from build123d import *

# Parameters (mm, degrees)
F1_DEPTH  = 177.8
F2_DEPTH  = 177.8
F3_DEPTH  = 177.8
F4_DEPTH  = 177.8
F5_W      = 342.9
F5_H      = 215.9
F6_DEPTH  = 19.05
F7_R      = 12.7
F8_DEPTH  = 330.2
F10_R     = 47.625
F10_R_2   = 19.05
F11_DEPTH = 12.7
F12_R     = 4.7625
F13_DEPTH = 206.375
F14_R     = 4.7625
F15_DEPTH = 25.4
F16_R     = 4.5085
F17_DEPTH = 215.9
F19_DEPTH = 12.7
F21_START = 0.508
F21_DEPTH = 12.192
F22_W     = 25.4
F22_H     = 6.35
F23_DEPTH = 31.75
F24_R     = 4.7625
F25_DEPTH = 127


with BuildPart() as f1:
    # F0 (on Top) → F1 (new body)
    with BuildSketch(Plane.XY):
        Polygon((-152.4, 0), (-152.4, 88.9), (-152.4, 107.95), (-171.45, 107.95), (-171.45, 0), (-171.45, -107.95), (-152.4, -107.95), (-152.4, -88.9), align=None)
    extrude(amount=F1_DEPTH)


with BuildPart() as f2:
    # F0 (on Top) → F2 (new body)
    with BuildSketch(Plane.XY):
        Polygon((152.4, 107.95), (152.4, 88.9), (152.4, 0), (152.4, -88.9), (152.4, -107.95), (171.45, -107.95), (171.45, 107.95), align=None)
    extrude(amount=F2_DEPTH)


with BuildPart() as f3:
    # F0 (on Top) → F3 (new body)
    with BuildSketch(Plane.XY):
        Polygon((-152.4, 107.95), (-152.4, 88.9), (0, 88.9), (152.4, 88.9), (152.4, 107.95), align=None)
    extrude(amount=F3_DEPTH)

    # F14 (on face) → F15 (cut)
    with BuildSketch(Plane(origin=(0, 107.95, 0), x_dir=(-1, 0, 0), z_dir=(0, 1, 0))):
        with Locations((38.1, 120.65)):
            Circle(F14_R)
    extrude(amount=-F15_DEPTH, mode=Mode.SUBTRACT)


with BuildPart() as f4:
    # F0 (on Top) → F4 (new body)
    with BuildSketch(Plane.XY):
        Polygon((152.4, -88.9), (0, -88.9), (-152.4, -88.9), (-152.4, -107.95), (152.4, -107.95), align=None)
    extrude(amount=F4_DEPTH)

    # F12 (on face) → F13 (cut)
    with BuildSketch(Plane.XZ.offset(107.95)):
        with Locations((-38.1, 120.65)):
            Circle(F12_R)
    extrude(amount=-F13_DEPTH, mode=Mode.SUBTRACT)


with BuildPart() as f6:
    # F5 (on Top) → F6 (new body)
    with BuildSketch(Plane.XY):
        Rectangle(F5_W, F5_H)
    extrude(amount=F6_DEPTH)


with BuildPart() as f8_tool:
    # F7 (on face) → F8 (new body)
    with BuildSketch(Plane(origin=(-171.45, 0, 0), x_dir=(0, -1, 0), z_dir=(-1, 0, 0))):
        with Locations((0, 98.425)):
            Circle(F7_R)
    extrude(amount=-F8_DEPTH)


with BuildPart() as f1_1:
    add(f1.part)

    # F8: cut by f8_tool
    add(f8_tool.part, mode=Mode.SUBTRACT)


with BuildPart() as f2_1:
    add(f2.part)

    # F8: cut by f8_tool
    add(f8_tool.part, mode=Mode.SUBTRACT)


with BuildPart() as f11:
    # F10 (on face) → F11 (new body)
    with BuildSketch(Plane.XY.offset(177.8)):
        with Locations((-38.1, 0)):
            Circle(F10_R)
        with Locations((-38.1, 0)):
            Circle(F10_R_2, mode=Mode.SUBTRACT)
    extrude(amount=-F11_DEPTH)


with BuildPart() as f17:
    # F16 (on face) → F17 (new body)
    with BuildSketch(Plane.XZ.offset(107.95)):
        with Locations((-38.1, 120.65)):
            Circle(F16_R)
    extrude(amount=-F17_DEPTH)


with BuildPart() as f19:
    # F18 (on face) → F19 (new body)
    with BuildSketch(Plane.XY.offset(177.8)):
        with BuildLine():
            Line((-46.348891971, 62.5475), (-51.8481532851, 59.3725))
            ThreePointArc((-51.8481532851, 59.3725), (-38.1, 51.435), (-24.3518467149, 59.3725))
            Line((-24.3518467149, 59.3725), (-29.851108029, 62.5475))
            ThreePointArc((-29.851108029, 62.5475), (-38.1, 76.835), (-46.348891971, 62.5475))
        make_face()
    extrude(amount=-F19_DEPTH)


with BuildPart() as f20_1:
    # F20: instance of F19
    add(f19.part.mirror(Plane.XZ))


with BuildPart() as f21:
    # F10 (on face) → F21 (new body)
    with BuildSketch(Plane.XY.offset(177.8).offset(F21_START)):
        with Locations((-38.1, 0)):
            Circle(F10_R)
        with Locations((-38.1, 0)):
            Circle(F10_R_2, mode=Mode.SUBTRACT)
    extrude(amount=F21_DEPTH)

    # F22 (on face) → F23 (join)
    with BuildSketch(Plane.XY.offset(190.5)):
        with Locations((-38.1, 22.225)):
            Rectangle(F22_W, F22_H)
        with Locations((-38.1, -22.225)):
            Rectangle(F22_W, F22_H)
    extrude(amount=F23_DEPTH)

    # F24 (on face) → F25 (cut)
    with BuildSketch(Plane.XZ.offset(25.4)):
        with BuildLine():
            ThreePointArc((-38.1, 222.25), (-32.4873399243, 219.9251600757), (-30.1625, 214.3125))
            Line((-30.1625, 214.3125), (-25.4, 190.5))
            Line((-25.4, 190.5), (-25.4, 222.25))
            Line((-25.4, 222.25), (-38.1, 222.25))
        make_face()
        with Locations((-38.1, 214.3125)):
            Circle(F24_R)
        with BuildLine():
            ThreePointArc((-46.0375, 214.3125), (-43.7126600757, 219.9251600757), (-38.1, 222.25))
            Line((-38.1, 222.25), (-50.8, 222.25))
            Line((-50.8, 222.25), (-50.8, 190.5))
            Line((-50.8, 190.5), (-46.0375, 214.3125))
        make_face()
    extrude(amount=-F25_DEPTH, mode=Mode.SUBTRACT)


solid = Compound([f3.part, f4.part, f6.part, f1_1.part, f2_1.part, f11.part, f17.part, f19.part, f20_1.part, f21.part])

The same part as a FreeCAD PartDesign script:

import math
import FreeCAD as App
import Part
import Sketcher
from FreeCAD import Vector
Q = App.Units.Quantity


def add_polygon(sketch, points):
    """Adds a closed chain of lines whose ends are joined by coincident constraints."""
    first, n = sketch.GeometryCount, len(points)
    for a, b in zip(points, points[1:] + points[:1]):
        sketch.addGeometry(Part.LineSegment(App.Vector(*a, 0), App.Vector(*b, 0)), False)
    for i in range(n):
        sketch.addConstraint(Sketcher.Constraint("Coincident", first + i, 2, first + (i + 1) % n, 1))

doc = App.newDocument("Part")
body = doc.addObject("PartDesign::Body", "Body")

# Sketch on XY plane
sketch1 = body.newObject("Sketcher::SketchObject", "Sketch")
sketch1.AttachmentSupport = (doc.getObject("XY_Plane"), [""])
sketch1.MapMode = "FlatFace"
add_polygon(sketch1, [(-152.4, 107.95), (-171.45, 107.95), (-171.45, -107.95), (-152.4, -107.95)])  # lines 0-3
sketch1.addConstraint([
    Sketcher.Constraint("Horizontal", 0),
    Sketcher.Constraint("Vertical", 1),
    Sketcher.Constraint("Horizontal", 2),
    Sketcher.Constraint("Vertical", 3),
    Sketcher.Constraint("DistanceY", 1, 2, 1, 1, Q("8.5 in")),
    Sketcher.Constraint("DistanceX", 2, 2, -1, 1, Q("6 in")),
    Sketcher.Constraint("DistanceX", 0, 2, 0, 1, Q("0.75 in")),
    Sketcher.Constraint("DistanceY", -1, 1, 0, 2, Q("4.25 in")),
])
pad1 = body.newObject("PartDesign::Pad", "Pad")
pad1.Profile = sketch1
pad1.Length = Q("7 in")
body2 = doc.addObject("PartDesign::Body", "Body001")

# Sketch on XY plane
sketch2 = body2.newObject("Sketcher::SketchObject", "Sketch001")
sketch2.AttachmentSupport = (doc.getObject("XY_Plane001"), [""])
sketch2.MapMode = "FlatFace"
add_polygon(sketch2, [(152.4, 107.95), (152.4, -107.95), (171.45, -107.95), (171.45, 107.95)])  # lines 0-3
sketch2.addConstraint([
    Sketcher.Constraint("Vertical", 0),
    Sketcher.Constraint("Horizontal", 1),
    Sketcher.Constraint("Vertical", 2),
    Sketcher.Constraint("Horizontal", 3),
    Sketcher.Constraint("DistanceY", 0, 2, 0, 1, Q("8.5 in")),
    Sketcher.Constraint("DistanceX", -1, 1, 0, 2, Q("6 in")),
    Sketcher.Constraint("DistanceX", 1, 1, 1, 2, Q("0.75 in")),
    Sketcher.Constraint("DistanceY", 0, 2, -1, 1, Q("4.25 in")),
])
pad2 = body2.newObject("PartDesign::Pad", "Pad001")
pad2.Profile = sketch2
pad2.Length = Q("7 in")
body3 = doc.addObject("PartDesign::Body", "Body002")

# Sketch on XY plane
sketch3 = body3.newObject("Sketcher::SketchObject", "Sketch002")
sketch3.AttachmentSupport = (doc.getObject("XY_Plane002"), [""])
sketch3.MapMode = "FlatFace"
add_polygon(sketch3, [(-152.4, 107.95), (-152.4, 88.9), (152.4, 88.9), (152.4, 107.95)])  # lines 0-3
sketch3.addConstraint([
    Sketcher.Constraint("Vertical", 0),
    Sketcher.Constraint("Horizontal", 1),
    Sketcher.Constraint("Vertical", 2),
    Sketcher.Constraint("Horizontal", 3),
    Sketcher.Constraint("DistanceX", 1, 1, 1, 2, Q("12 in")),
    Sketcher.Constraint("DistanceX", 0, 2, -1, 1, Q("6 in")),
    Sketcher.Constraint("DistanceY", 0, 2, 0, 1, Q("0.75 in")),
    Sketcher.Constraint("DistanceY", -1, 1, 0, 2, Q("3.5 in")),
])
pad3 = body3.newObject("PartDesign::Pad", "Pad002")
pad3.Profile = sketch3
pad3.Length = Q("7 in")

# Sketch on XZ plane
sketch4 = body3.newObject("Sketcher::SketchObject", "Sketch003")
sketch4.AttachmentSupport = (doc.getObject("XZ_Plane002"), [""])
sketch4.MapMode = "FlatFace"
sketch4.AttachmentOffset = App.Placement(Vector(0, 0, -4.25 * 25.4), App.Rotation())
sketch4.addGeometry(Part.Circle(Vector(-38.1, 120.65, 0), Vector(0, 0, 1), 4.7625), False)
sketch4.addConstraint([
    Sketcher.Constraint("Diameter", 0, Q("0.375 in")),
    Sketcher.Constraint("DistanceX", 0, 3, -1, 1, Q("1.5 in")),
    Sketcher.Constraint("DistanceY", -1, 1, 0, 3, Q("4.75 in")),
])
pocket1 = body3.newObject("PartDesign::Pocket", "Pocket")
pocket1.Profile = sketch4
pocket1.Length = Q("1 in")
pocket1.Reversed = True
body4 = doc.addObject("PartDesign::Body", "Body003")

# Sketch on XY plane
sketch5 = body4.newObject("Sketcher::SketchObject", "Sketch004")
sketch5.AttachmentSupport = (doc.getObject("XY_Plane003"), [""])
sketch5.MapMode = "FlatFace"
add_polygon(sketch5, [(152.4, -88.9), (-152.4, -88.9), (-152.4, -107.95), (152.4, -107.95)])  # lines 0-3
sketch5.addConstraint([
    Sketcher.Constraint("Horizontal", 0),
    Sketcher.Constraint("Vertical", 1),
    Sketcher.Constraint("Horizontal", 2),
    Sketcher.Constraint("Vertical", 3),
    Sketcher.Constraint("DistanceX", 0, 2, 0, 1, Q("12 in")),
    Sketcher.Constraint("DistanceX", 0, 2, -1, 1, Q("6 in")),
    Sketcher.Constraint("DistanceY", 1, 2, 1, 1, Q("0.75 in")),
    Sketcher.Constraint("DistanceY", 0, 2, -1, 1, Q("3.5 in")),
])
pad4 = body4.newObject("PartDesign::Pad", "Pad003")
pad4.Profile = sketch5
pad4.Length = Q("7 in")

# Sketch on XZ plane
sketch6 = body4.newObject("Sketcher::SketchObject", "Sketch005")
sketch6.AttachmentSupport = (doc.getObject("XZ_Plane003"), [""])
sketch6.MapMode = "FlatFace"
sketch6.AttachmentOffset = App.Placement(Vector(0, 0, 4.25 * 25.4), App.Rotation())
sketch6.addGeometry(Part.Circle(Vector(-38.1, 120.65, 0), Vector(0, 0, 1), 4.7625), False)
sketch6.addConstraint([
    Sketcher.Constraint("Diameter", 0, Q("0.375 in")),
    Sketcher.Constraint("DistanceX", 0, 3, -1, 1, Q("1.5 in")),
    Sketcher.Constraint("DistanceY", -1, 1, 0, 3, Q("4.75 in")),
])
pocket2 = body4.newObject("PartDesign::Pocket", "Pocket001")
pocket2.Profile = sketch6
pocket2.Length = Q("8.125 in")
body5 = doc.addObject("PartDesign::Body", "Body004")

# Sketch on XY plane
sketch7 = body5.newObject("Sketcher::SketchObject", "Sketch006")
sketch7.AttachmentSupport = (doc.getObject("XY_Plane004"), [""])
sketch7.MapMode = "FlatFace"
add_polygon(sketch7, [(-171.45, 107.95), (-171.45, -107.95), (171.45, -107.95), (171.45, 107.95)])  # lines 0-3
sketch7.addConstraint([
    Sketcher.Constraint("Vertical", 0),
    Sketcher.Constraint("Horizontal", 1),
    Sketcher.Constraint("Vertical", 2),
    Sketcher.Constraint("Horizontal", 3),
    Sketcher.Constraint("Symmetric", 0, 2, 2, 2, -1, 1),
    Sketcher.Constraint("DistanceX", 1, 1, 1, 2, Q("13.5 in")),
    Sketcher.Constraint("DistanceY", 0, 2, 0, 1, Q("8.5 in")),
])
pad5 = body5.newObject("PartDesign::Pad", "Pad004")
pad5.Profile = sketch7
pad5.Length = Q("0.75 in")
body6 = doc.addObject("PartDesign::Body", "Body005")

# Sketch on YZ plane
sketch8 = body6.newObject("Sketcher::SketchObject", "Sketch007")
sketch8.AttachmentSupport = (doc.getObject("YZ_Plane005"), [""])
sketch8.MapMode = "FlatFace"
sketch8.AttachmentOffset = App.Placement(Vector(0, 0, -6.75 * 25.4), App.Rotation())
sketch8.addGeometry(Part.Circle(Vector(0, 98.425, 0), Vector(0, 0, 1), 12.7), False)
sketch8.addConstraint([
    Sketcher.Constraint("PointOnObject", 0, 3, -2),
    Sketcher.Constraint("Diameter", 0, Q("1 in")),
    Sketcher.Constraint("DistanceY", -1, 1, 0, 3, Q("3.875 in")),
])
pad6 = body6.newObject("PartDesign::Pad", "Pad005")
pad6.Profile = sketch8
pad6.Length = Q("13 in")
doc.recompute()

body7 = doc.addObject("PartDesign::Body", "Body006")
body7.BaseFeature = body6
boolean = body.newObject("PartDesign::Boolean", "Boolean")
boolean.Type = "Cut"
boolean.addObjects([body7])
doc.recompute()

boolean2 = body2.newObject("PartDesign::Boolean", "Boolean001")
boolean2.Type = "Cut"
boolean2.addObjects([body6])
body8 = doc.addObject("PartDesign::Body", "Body007")

# Sketch on XY plane
sketch9 = body8.newObject("Sketcher::SketchObject", "Sketch008")
sketch9.AttachmentSupport = (doc.getObject("XY_Plane007"), [""])
sketch9.MapMode = "FlatFace"
sketch9.AttachmentOffset = App.Placement(Vector(0, 0, 7 * 25.4), App.Rotation())
sketch9.addGeometry([
    Part.Circle(Vector(-38.1, 0, 0), Vector(0, 0, 1), 47.625),
    Part.Circle(Vector(-38.1, 0, 0), Vector(0, 0, 1), 19.05),
], False)
sketch9.addConstraint([
    Sketcher.Constraint("Coincident", 1, 3, 0, 3),
    Sketcher.Constraint("PointOnObject", 0, 3, -1),
    Sketcher.Constraint("Diameter", 1, Q("1.5 in")),
    Sketcher.Constraint("Diameter", 0, Q("3.75 in")),
    Sketcher.Constraint("DistanceX", 0, 3, -1, 1, Q("1.5 in")),
])
pad7 = body8.newObject("PartDesign::Pad", "Pad006")
pad7.Profile = sketch9
pad7.Length = Q("0.5 in")
pad7.Reversed = True
body9 = doc.addObject("PartDesign::Body", "Body008")

# Sketch on XZ plane
sketch10 = body9.newObject("Sketcher::SketchObject", "Sketch009")
sketch10.AttachmentSupport = (doc.getObject("XZ_Plane008"), [""])
sketch10.MapMode = "FlatFace"
sketch10.AttachmentOffset = App.Placement(Vector(0, 0, 4.25 * 25.4), App.Rotation())
sketch10.addGeometry(Part.Circle(Vector(-38.1, 120.65, 0), Vector(0, 0, 1), 4.5085), False)
sketch10.addConstraint([
    Sketcher.Constraint("Diameter", 0, Q("0.355 in")),
    Sketcher.Constraint("DistanceX", 0, 3, -1, 1, Q("1.5 in")),
    Sketcher.Constraint("DistanceY", -1, 1, 0, 3, Q("4.75 in")),
])
pad8 = body9.newObject("PartDesign::Pad", "Pad007")
pad8.Profile = sketch10
pad8.Length = Q("8.5 in")
pad8.Reversed = True
body10 = doc.addObject("PartDesign::Body", "Body009")

# Sketch on XY plane
sketch11 = body10.newObject("Sketcher::SketchObject", "Sketch010")
sketch11.AttachmentSupport = (doc.getObject("XY_Plane009"), [""])
sketch11.MapMode = "FlatFace"
sketch11.AttachmentOffset = App.Placement(Vector(0, 0, 7 * 25.4), App.Rotation())
sketch11.addGeometry([
    Part.LineSegment(Vector(-46.348892, 62.5475, 0), Vector(-51.848153, 59.3725, 0)),
    Part.ArcOfCircle(Part.Circle(Vector(-38.1, 67.31, 0), Vector(0, 0, 1), 15.875), math.radians(-150), math.radians(-30)),
    Part.LineSegment(Vector(-24.351847, 59.3725, 0), Vector(-29.851108, 62.5475, 0)),
    Part.ArcOfCircle(Part.Circle(Vector(-38.1, 67.31, 0), Vector(0, 0, 1), 9.525), math.radians(-30), math.radians(210)),
], False)
sketch11.addConstraint([
    Sketcher.Constraint("Coincident", 0, 2, 1, 1),
    Sketcher.Constraint("Coincident", 1, 2, 2, 1),
    Sketcher.Constraint("Coincident", 2, 2, 3, 1),
    Sketcher.Constraint("Coincident", 3, 2, 0, 1),
    Sketcher.Constraint("Coincident", 3, 3, 1, 3),
    Sketcher.Constraint("Horizontal", 0, 2, 1, 2),
    Sketcher.Constraint("Horizontal", 2, 2, 3, 2),
    Sketcher.Constraint("Angle", 0, Q("-150 deg")),
    Sketcher.Constraint("Radius", 1, Q("0.625 in")),
    Sketcher.Constraint("Radius", 3, Q("0.375 in")),
    Sketcher.Constraint("DistanceX", 1, 3, -1, 1, Q("1.5 in")),
    Sketcher.Constraint("DistanceY", -1, 1, 1, 3, Q("2.65 in")),
    Sketcher.Constraint("DistanceY", 0, 2, 1, 3, Q("0.3125 in")),
])
pad9 = body10.newObject("PartDesign::Pad", "Pad008")
pad9.Profile = sketch11
pad9.Length = Q("0.5 in")
pad9.Reversed = True
body11 = doc.addObject("PartDesign::Body", "Body010")
doc.recompute()

mirroring = doc.addObject("Part::Mirroring", "Mirroring")
mirroring.Source = body10
mirroring.Base = Vector(0, 0, 0)
mirroring.Normal = Vector(0, -1, 0)
body11.BaseFeature = mirroring
doc.recompute()
body12 = doc.addObject("PartDesign::Body", "Body011")

# Sketch on XY plane
sketch12 = body12.newObject("Sketcher::SketchObject", "Sketch011")
sketch12.AttachmentSupport = (doc.getObject("XY_Plane011"), [""])
sketch12.MapMode = "FlatFace"
sketch12.AttachmentOffset = App.Placement(Vector(0, 0, 7.02 * 25.4), App.Rotation())
sketch12.addGeometry([
    Part.Circle(Vector(-38.1, 0, 0), Vector(0, 0, 1), 47.625),
    Part.Circle(Vector(-38.1, 0, 0), Vector(0, 0, 1), 19.05),
], False)
sketch12.addConstraint([
    Sketcher.Constraint("Coincident", 1, 3, 0, 3),
    Sketcher.Constraint("PointOnObject", 0, 3, -1),
    Sketcher.Constraint("Diameter", 1, Q("1.5 in")),
    Sketcher.Constraint("Diameter", 0, Q("3.75 in")),
    Sketcher.Constraint("DistanceX", 0, 3, -1, 1, Q("1.5 in")),
])
pad10 = body12.newObject("PartDesign::Pad", "Pad009")
pad10.Profile = sketch12
pad10.Length = Q("0.48 in")

# Sketch on XY plane
sketch13 = body12.newObject("Sketcher::SketchObject", "Sketch012")
sketch13.AttachmentSupport = (doc.getObject("XY_Plane011"), [""])
sketch13.MapMode = "FlatFace"
sketch13.AttachmentOffset = App.Placement(Vector(0, 0, 7.5 * 25.4), App.Rotation())
add_polygon(sketch13, [(-50.8, 25.4), (-50.8, 19.05), (-25.4, 19.05), (-25.4, 25.4)])  # lines 0-3
add_polygon(sketch13, [(-50.8, -19.05), (-50.8, -25.4), (-25.4, -25.4), (-25.4, -19.05)])  # lines 4-7
sketch13.addConstraint([
    Sketcher.Constraint("Vertical", 0),
    Sketcher.Constraint("Horizontal", 1),
    Sketcher.Constraint("Vertical", 2),
    Sketcher.Constraint("Horizontal", 3),
    Sketcher.Constraint("Vertical", 4),
    Sketcher.Constraint("Horizontal", 5),
    Sketcher.Constraint("Vertical", 6),
    Sketcher.Constraint("Horizontal", 7),
    Sketcher.Constraint("Symmetric", 3, 2, 4, 2, -1),
    Sketcher.Constraint("Symmetric", 1, 2, 6, 2, -1),
    Sketcher.Constraint("DistanceX", 1, 1, 1, 2, Q("1 in")),
    Sketcher.Constraint("DistanceX", 0, 2, -1, 1, Q("2 in")),
    Sketcher.Constraint("DistanceY", -1, 1, 2, 2, Q("1 in")),
    Sketcher.Constraint("DistanceY", 0, 2, 0, 1, Q("0.25 in")),
])
pad11 = body12.newObject("PartDesign::Pad", "Pad010")
pad11.Profile = sketch13
pad11.Length = Q("1.25 in")

# Sketch on XZ plane
sketch14 = body12.newObject("Sketcher::SketchObject", "Sketch013")
sketch14.AttachmentSupport = (doc.getObject("XZ_Plane011"), [""])
sketch14.MapMode = "FlatFace"
sketch14.AttachmentOffset = App.Placement(Vector(0, 0, 1 * 25.4), App.Rotation())
sketch14.addGeometry([
    Part.ArcOfCircle(Part.Circle(Vector(-38.1, 214.3125, 0), Vector(0, 0, 1), 7.9375), math.radians(0), math.radians(90)),  # 0
    Part.LineSegment(Vector(-30.1625, 214.3125, 0), Vector(-25.4, 190.5, 0)),  # 1
    Part.LineSegment(Vector(-25.4, 190.5, 0), Vector(-25.4, 222.25, 0)),  # 2
    Part.LineSegment(Vector(-25.4, 222.25, 0), Vector(-38.1, 222.25, 0)),  # 3
    Part.Circle(Vector(-38.1, 214.3125, 0), Vector(0, 0, 1), 4.7625),  # 4
    Part.ArcOfCircle(Part.Circle(Vector(-38.1, 214.3125, 0), Vector(0, 0, 1), 7.9375), math.radians(90), math.radians(180)),  # 5
    Part.LineSegment(Vector(-38.1, 222.25, 0), Vector(-50.8, 222.25, 0)),  # 6
    Part.LineSegment(Vector(-50.8, 222.25, 0), Vector(-50.8, 190.5, 0)),  # 7
    Part.LineSegment(Vector(-50.8, 190.5, 0), Vector(-46.0375, 214.3125, 0)),  # 8
], False)
sketch14.addConstraint([
    Sketcher.Constraint("Coincident", 0, 1, 1, 1),
    Sketcher.Constraint("Coincident", 1, 2, 2, 1),
    Sketcher.Constraint("Coincident", 2, 2, 3, 1),
    Sketcher.Constraint("Tangent", 3, 2, 0, 2),
    Sketcher.Constraint("Tangent", 5, 1, 6, 1),
    Sketcher.Constraint("Coincident", 6, 2, 7, 1),
    Sketcher.Constraint("Coincident", 7, 2, 8, 1),
    Sketcher.Constraint("Coincident", 8, 2, 5, 2),
    Sketcher.Constraint("Vertical", 2),
    Sketcher.Constraint("Horizontal", 3),
    Sketcher.Constraint("Horizontal", 6),
    Sketcher.Constraint("Vertical", 7),
    Sketcher.Constraint("Coincident", 4, 3, 0, 3),
    Sketcher.Constraint("Coincident", 5, 3, 0, 3),
    Sketcher.Constraint("Equal", 0, 5),
    Sketcher.Constraint("Horizontal", 5, 3, 0, 1),
    Sketcher.Constraint("Horizontal", 1, 2, 7, 2),
    Sketcher.Constraint("Horizontal", 0, 1, 8, 2),
    Sketcher.Constraint("Equal", 3, 6),
    Sketcher.Constraint("Diameter", 4, Q("0.375 in")),
    Sketcher.Constraint("DistanceX", 3, 2, 3, 1, Q("0.5 in")),
    Sketcher.Constraint("DistanceX", 1, 2, -1, 1, Q("1 in")),
    Sketcher.Constraint("Radius", 0, Q("0.3125 in")),
    Sketcher.Constraint("DistanceY", 2, 1, 2, 2, Q("1.25 in")),
    Sketcher.Constraint("DistanceY", -1, 1, 1, 2, Q("7.5 in")),
])
pocket3 = body12.newObject("PartDesign::Pocket", "Pocket002")
pocket3.Profile = sketch14
pocket3.Length = Q("5 in")
mirroring.Visibility = False

doc.recompute()
